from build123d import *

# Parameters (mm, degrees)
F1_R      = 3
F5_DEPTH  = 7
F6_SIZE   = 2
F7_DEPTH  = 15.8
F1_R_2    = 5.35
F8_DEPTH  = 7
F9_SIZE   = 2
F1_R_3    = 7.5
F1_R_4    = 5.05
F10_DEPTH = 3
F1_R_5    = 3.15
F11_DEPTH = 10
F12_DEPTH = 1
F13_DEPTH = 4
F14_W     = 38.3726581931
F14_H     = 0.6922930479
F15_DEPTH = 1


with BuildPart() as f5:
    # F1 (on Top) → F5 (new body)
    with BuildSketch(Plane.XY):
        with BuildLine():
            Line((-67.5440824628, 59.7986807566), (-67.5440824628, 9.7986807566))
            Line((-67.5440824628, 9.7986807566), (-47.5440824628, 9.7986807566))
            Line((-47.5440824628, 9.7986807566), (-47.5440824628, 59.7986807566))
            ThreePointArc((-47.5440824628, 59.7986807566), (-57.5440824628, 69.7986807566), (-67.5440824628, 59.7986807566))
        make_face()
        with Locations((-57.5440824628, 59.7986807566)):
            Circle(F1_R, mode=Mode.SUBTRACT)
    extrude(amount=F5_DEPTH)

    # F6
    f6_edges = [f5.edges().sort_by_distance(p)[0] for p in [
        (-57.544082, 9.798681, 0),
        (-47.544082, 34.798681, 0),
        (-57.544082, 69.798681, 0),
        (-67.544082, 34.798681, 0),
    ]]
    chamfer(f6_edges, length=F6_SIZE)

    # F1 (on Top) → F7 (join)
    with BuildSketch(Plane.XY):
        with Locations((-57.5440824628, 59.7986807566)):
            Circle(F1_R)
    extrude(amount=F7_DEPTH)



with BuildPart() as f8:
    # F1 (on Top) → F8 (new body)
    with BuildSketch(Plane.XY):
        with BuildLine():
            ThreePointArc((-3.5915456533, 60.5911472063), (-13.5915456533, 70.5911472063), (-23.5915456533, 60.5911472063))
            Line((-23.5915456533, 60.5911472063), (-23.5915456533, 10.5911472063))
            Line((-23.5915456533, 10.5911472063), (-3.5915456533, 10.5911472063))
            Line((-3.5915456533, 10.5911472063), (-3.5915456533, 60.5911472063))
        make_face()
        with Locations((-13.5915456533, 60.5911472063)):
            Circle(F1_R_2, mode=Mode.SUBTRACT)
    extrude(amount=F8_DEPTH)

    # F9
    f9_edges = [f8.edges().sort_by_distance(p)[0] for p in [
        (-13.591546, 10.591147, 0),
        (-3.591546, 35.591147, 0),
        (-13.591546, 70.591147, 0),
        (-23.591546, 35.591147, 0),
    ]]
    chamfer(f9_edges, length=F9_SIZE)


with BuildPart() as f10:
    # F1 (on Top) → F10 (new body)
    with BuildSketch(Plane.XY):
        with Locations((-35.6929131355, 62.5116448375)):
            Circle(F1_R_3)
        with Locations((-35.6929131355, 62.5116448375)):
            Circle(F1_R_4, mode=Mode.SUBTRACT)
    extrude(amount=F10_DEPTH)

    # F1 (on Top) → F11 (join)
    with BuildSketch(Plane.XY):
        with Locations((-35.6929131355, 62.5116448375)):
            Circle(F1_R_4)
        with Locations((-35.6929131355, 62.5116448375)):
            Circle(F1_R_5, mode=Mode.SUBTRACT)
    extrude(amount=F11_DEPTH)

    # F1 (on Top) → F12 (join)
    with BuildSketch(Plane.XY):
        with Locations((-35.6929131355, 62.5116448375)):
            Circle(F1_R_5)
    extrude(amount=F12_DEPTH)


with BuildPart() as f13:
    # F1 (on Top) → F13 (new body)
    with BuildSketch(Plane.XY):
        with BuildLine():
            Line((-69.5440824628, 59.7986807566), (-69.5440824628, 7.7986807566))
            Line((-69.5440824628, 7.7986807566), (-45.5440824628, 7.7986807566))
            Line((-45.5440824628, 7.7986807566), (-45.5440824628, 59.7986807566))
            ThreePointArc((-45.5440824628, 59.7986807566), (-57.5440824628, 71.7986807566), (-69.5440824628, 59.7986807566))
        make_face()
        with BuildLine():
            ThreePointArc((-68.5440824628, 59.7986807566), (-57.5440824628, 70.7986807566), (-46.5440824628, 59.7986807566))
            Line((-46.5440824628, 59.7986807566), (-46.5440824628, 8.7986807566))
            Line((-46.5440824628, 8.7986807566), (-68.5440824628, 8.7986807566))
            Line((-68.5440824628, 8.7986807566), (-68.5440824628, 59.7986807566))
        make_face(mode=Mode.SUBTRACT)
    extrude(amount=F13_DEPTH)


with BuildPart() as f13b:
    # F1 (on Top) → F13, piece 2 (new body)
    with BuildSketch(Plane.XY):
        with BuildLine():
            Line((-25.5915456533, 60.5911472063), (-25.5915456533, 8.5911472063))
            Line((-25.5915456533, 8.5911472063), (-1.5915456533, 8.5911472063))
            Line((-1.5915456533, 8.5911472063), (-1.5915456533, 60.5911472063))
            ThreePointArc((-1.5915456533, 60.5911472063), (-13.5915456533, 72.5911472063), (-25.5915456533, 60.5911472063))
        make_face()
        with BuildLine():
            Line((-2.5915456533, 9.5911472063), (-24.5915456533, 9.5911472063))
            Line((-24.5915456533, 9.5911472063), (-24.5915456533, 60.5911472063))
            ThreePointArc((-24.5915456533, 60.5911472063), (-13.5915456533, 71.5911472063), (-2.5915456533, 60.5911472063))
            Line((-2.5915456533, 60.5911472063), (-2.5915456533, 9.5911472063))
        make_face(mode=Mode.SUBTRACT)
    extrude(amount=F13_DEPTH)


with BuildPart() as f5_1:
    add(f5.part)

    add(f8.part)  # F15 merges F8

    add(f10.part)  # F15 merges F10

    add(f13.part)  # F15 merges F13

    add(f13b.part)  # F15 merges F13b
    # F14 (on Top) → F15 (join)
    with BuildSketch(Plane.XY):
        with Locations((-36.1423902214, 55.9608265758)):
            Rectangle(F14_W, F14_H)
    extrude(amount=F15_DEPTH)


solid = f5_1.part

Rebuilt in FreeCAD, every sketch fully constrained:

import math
import FreeCAD as App
import Part
import Sketcher

V = App.Vector


def edges_at(feature, points):
    """Names of the edges that pass closest to the given points."""
    edges = feature.Shape.Edges
    near = lambda p: min(range(len(edges)), key=lambda i: edges[i].distToShape(Part.Vertex(*p))[0])
    return sorted({f"Edge{near(p) + 1}" for p in points})

doc = App.newDocument("Part")
params = doc.addObject("Spreadsheet::Sheet", "Params")
for row, (alias, value) in enumerate([
    ("sketch1_diameter", "6 mm"),
    ("sketch1_radius", "10 mm"),
    ("sketch1_height", "50 mm"),
    ("pad1_length", "7 mm"),
    ("chamfer_size", "2 mm"),
    ("sketch2_diameter", "6 mm"),
    ("pad2_length", "15.8 mm"),
    ("sketch3_radius", "10 mm"),
    ("sketch3_diameter", "10.7 mm"),
    ("sketch3_height", "50 mm"),
    ("pad3_length", "7 mm"),
    ("chamfer2_size", "2 mm"),
    ("sketch4_diameter", "15 mm"),
    ("sketch4_diameter2", "10.1 mm"),
    ("pad4_length", "3 mm"),
    ("sketch5_diameter", "10.1 mm"),
    ("sketch5_diameter2", "6.3 mm"),
    ("pad5_length", "10 mm"),
    ("sketch6_diameter", "6.3 mm"),
    ("pad6_length", "1 mm"),
    ("sketch7_radius", "12 mm"),
    ("sketch7_radius2", "11 mm"),
    ("sketch7_height", "52 mm"),
    ("sketch7_height2", "51 mm"),
    ("pad7_length", "4 mm"),
    ("sketch8_radius", "12 mm"),
    ("sketch8_radius2", "11 mm"),
    ("sketch8_height", "52 mm"),
    ("sketch8_height2", "51 mm"),
    ("pad8_length", "4 mm"),
    ("pad9_length", "1 mm"),
], start=1):
    params.set(f"A{row}", alias)
    params.set(f"B{row}", "=" + value)
    params.setAlias(f"B{row}", alias)

body = doc.addObject("PartDesign::Body", "Body")

# Sketch on XY plane
sketch1 = body.newObject("Sketcher::SketchObject", "Sketch")
sketch1.AttachmentSupport = (doc.getObject("XY_Plane"), [""])
sketch1.MapMode = "FlatFace"
sketch1.addGeometry(Part.LineSegment(V(-67.5, 59.8, 0), V(-67.5, 9.8, 0)), False)
sketch1.addGeometry(Part.LineSegment(V(-67.5, 9.8, 0), V(-47.5, 9.8, 0)), False)
sketch1.addGeometry(Part.LineSegment(V(-47.5, 9.8, 0), V(-47.5, 59.8, 0)), False)
sketch1.addGeometry(Part.ArcOfCircle(Part.Circle(V(-57.5, 59.8, 0), V(0, 0, 1), 10), math.radians(0), math.radians(180)), False)
sketch1.addGeometry(Part.Circle(V(-57.5, 59.8, 0), V(0, 0, 1), 3), False)
sketch1.addConstraint(Sketcher.Constraint("Coincident", 0, 2, 1, 1))
sketch1.addConstraint(Sketcher.Constraint("Coincident", 1, 2, 2, 1))
sketch1.addConstraint(Sketcher.Constraint("Tangent", 2, 2, 3, 1))
sketch1.addConstraint(Sketcher.Constraint("Tangent", 3, 2, 0, 1))
sketch1.addConstraint(Sketcher.Constraint("Vertical", 0))
sketch1.addConstraint(Sketcher.Constraint("Horizontal", 1))
sketch1.addConstraint(Sketcher.Constraint("Vertical", 2))
sketch1.addConstraint(Sketcher.Constraint("Coincident", 4, 3, 3, 3))
sketch1.addConstraint(Sketcher.Constraint("Diameter", 4, 6.0))
sketch1.addConstraint(Sketcher.Constraint("Radius", 3, 10.0))
sketch1.addConstraint(Sketcher.Constraint("DistanceY", 0, 2, 0, 1, 50.0))
sketch1.addConstraint(Sketcher.Constraint("DistanceY", -1, 1, 3, 3, 59.798681))
sketch1.addConstraint(Sketcher.Constraint("DistanceX", 3, 3, -1, 1, 57.544082))
sketch1.setExpression("Constraints[8]", "Params.sketch1_diameter")
sketch1.setExpression("Constraints[9]", "Params.sketch1_radius")
sketch1.setExpression("Constraints[10]", "Params.sketch1_height")
pad1 = body.newObject("PartDesign::Pad", "Pad")
pad1.Profile = sketch1
pad1.setExpression("Length", "Params.pad1_length")
doc.recompute()

chamfer = body.newObject("PartDesign::Chamfer", "Chamfer")
chamfer.Base = (pad1, edges_at(pad1, [
    (-57.544, 9.799, 0),
    (-47.544, 34.799, 0),
    (-57.544, 69.799, 0),
    (-67.544, 34.799, 0),
]))
chamfer.setExpression("Size", "Params.chamfer_size")

# Sketch on XY plane
sketch2 = body.newObject("Sketcher::SketchObject", "Sketch001")
sketch2.AttachmentSupport = (doc.getObject("XY_Plane"), [""])
sketch2.MapMode = "FlatFace"
sketch2.addGeometry(Part.Circle(V(-57.5, 59.8, 0), V(0, 0, 1), 3), False)
sketch2.addConstraint(Sketcher.Constraint("Diameter", 0, 6.0))
sketch2.addConstraint(Sketcher.Constraint("DistanceY", -1, 1, 0, 3, 59.798681))
sketch2.addConstraint(Sketcher.Constraint("DistanceX", 0, 3, -1, 1, 57.544082))
sketch2.setExpression("Constraints[0]", "Params.sketch2_diameter")
pad2 = body.newObject("PartDesign::Pad", "Pad001")
pad2.Profile = sketch2
pad2.setExpression("Length", "Params.pad2_length")
body2 = doc.addObject("PartDesign::Body", "Body001")

# Sketch on XY plane
sketch3 = body2.newObject("Sketcher::SketchObject", "Sketch002")
sketch3.AttachmentSupport = (doc.getObject("XY_Plane001"), [""])
sketch3.MapMode = "FlatFace"
sketch3.addGeometry(Part.ArcOfCircle(Part.Circle(V(-14, 61, 0), V(0, 0, 1), 10), math.radians(0), math.radians(180)), False)
sketch3.addGeometry(Part.LineSegment(V(-24, 61, 0), V(-24, 11, 0)), False)
sketch3.addGeometry(Part.LineSegment(V(-24, 11, 0), V(-4, 11, 0)), False)
sketch3.addGeometry(Part.LineSegment(V(-4, 11, 0), V(-4, 61, 0)), False)
sketch3.addGeometry(Part.Circle(V(-14, 61, 0), V(0, 0, 1), 5), False)
sketch3.addConstraint(Sketcher.Constraint("Tangent", 0, 2, 1, 1))
sketch3.addConstraint(Sketcher.Constraint("Coincident", 1, 2, 2, 1))
sketch3.addConstraint(Sketcher.Constraint("Coincident", 2, 2, 3, 1))
sketch3.addConstraint(Sketcher.Constraint("Tangent", 3, 2, 0, 1))
sketch3.addConstraint(Sketcher.Constraint("Vertical", 1))
sketch3.addConstraint(Sketcher.Constraint("Horizontal", 2))
sketch3.addConstraint(Sketcher.Constraint("Vertical", 3))
sketch3.addConstraint(Sketcher.Constraint("Coincident", 4, 3, 0, 3))
sketch3.addConstraint(Sketcher.Constraint("Radius", 0, 10.0))
sketch3.addConstraint(Sketcher.Constraint("Diameter", 4, 10.7))
sketch3.addConstraint(Sketcher.Constraint("DistanceY", 1, 2, 1, 1, 50.0))
sketch3.addConstraint(Sketcher.Constraint("DistanceX", 0, 3, -1, 1, 13.591546))
sketch3.addConstraint(Sketcher.Constraint("DistanceY", -1, 1, 0, 3, 60.591147))
sketch3.setExpression("Constraints[8]", "Params.sketch3_radius")
sketch3.setExpression("Constraints[9]", "Params.sketch3_diameter")
sketch3.setExpression("Constraints[10]", "Params.sketch3_height")
pad3 = body2.newObject("PartDesign::Pad", "Pad002")
pad3.Profile = sketch3
pad3.setExpression("Length", "Params.pad3_length")
doc.recompute()

chamfer2 = body2.newObject("PartDesign::Chamfer", "Chamfer001")
chamfer2.Base = (pad3, edges_at(pad3, [
    (-13.592, 10.591, 0),
    (-3.592, 35.591, 0),
    (-13.592, 70.591, 0),
    (-23.592, 35.591, 0),
]))
chamfer2.setExpression("Size", "Params.chamfer2_size")
body3 = doc.addObject("PartDesign::Body", "Body002")

# Sketch on XY plane
sketch4 = body3.newObject("Sketcher::SketchObject", "Sketch003")
sketch4.AttachmentSupport = (doc.getObject("XY_Plane002"), [""])
sketch4.MapMode = "FlatFace"
sketch4.addGeometry(Part.Circle(V(-36, 63, 0), V(0, 0, 1), 8), False)
sketch4.addGeometry(Part.Circle(V(-36, 63, 0), V(0, 0, 1), 5), False)
sketch4.addConstraint(Sketcher.Constraint("Coincident", 1, 3, 0, 3))
sketch4.addConstraint(Sketcher.Constraint("Diameter", 0, 15.0))
sketch4.addConstraint(Sketcher.Constraint("Diameter", 1, 10.1))
sketch4.addConstraint(Sketcher.Constraint("DistanceX", 0, 3, -1, 1, 35.692913))
sketch4.addConstraint(Sketcher.Constraint("DistanceY", -1, 1, 0, 3, 62.511645))
sketch4.setExpression("Constraints[1]", "Params.sketch4_diameter")
sketch4.setExpression("Constraints[2]", "Params.sketch4_diameter2")
pad4 = body3.newObject("PartDesign::Pad", "Pad003")
pad4.Profile = sketch4
pad4.setExpression("Length", "Params.pad4_length")

# Sketch on XY plane
sketch5 = body3.newObject("Sketcher::SketchObject", "Sketch004")
sketch5.AttachmentSupport = (doc.getObject("XY_Plane002"), [""])
sketch5.MapMode = "FlatFace"
sketch5.addGeometry(Part.Circle(V(-35.7, 62.5, 0), V(0, 0, 1), 5), False)
sketch5.addGeometry(Part.Circle(V(-35.7, 62.5, 0), V(0, 0, 1), 3.1), False)
sketch5.addConstraint(Sketcher.Constraint("Coincident", 1, 3, 0, 3))
sketch5.addConstraint(Sketcher.Constraint("Diameter", 0, 10.1))
sketch5.addConstraint(Sketcher.Constraint("Diameter", 1, 6.3))
sketch5.addConstraint(Sketcher.Constraint("DistanceX", 0, 3, -1, 1, 35.692913))
sketch5.addConstraint(Sketcher.Constraint("DistanceY", -1, 1, 0, 3, 62.511645))
sketch5.setExpression("Constraints[1]", "Params.sketch5_diameter")
sketch5.setExpression("Constraints[2]", "Params.sketch5_diameter2")
pad5 = body3.newObject("PartDesign::Pad", "Pad004")
pad5.Profile = sketch5
pad5.setExpression("Length", "Params.pad5_length")

# Sketch on XY plane
sketch6 = body3.newObject("Sketcher::SketchObject", "Sketch005")
sketch6.AttachmentSupport = (doc.getObject("XY_Plane002"), [""])
sketch6.MapMode = "FlatFace"
sketch6.addGeometry(Part.Circle(V(-35.7, 62.5, 0), V(0, 0, 1), 3.1), False)
sketch6.addConstraint(Sketcher.Constraint("Diameter", 0, 6.3))
sketch6.addConstraint(Sketcher.Constraint("DistanceX", 0, 3, -1, 1, 35.692913))
sketch6.addConstraint(Sketcher.Constraint("DistanceY", -1, 1, 0, 3, 62.511645))
sketch6.setExpression("Constraints[0]", "Params.sketch6_diameter")
pad6 = body3.newObject("PartDesign::Pad", "Pad005")
pad6.Profile = sketch6
pad6.setExpression("Length", "Params.pad6_length")
body4 = doc.addObject("PartDesign::Body", "Body003")

# Sketch on XY plane
sketch7 = body4.newObject("Sketcher::SketchObject", "Sketch006")
sketch7.AttachmentSupport = (doc.getObject("XY_Plane003"), [""])
sketch7.MapMode = "FlatFace"
sketch7.addGeometry(Part.LineSegment(V(-70, 60, 0), V(-70, 8, 0)), False)
sketch7.addGeometry(Part.LineSegment(V(-70, 8, 0), V(-46, 8, 0)), False)
sketch7.addGeometry(Part.LineSegment(V(-46, 8, 0), V(-46, 60, 0)), False)
sketch7.addGeometry(Part.ArcOfCircle(Part.Circle(V(-58, 60, 0), V(0, 0, 1), 12), math.radians(0), math.radians(180)), False)
sketch7.addGeometry(Part.LineSegment(V(-69, 9, 0), V(-69, 60, 0)), False)
sketch7.addGeometry(Part.ArcOfCircle(Part.Circle(V(-58, 60, 0), V(0, 0, 1), 11), math.radians(0), math.radians(180)), False)
sketch7.addGeometry(Part.LineSegment(V(-47, 60, 0), V(-47, 9, 0)), False)
sketch7.addGeometry(Part.LineSegment(V(-47, 9, 0), V(-69, 9, 0)), False)
sketch7.addConstraint(Sketcher.Constraint("Coincident", 0, 2, 1, 1))
sketch7.addConstraint(Sketcher.Constraint("Coincident", 1, 2, 2, 1))
sketch7.addConstraint(Sketcher.Constraint("Tangent", 2, 2, 3, 1))
sketch7.addConstraint(Sketcher.Constraint("Tangent", 3, 2, 0, 1))
sketch7.addConstraint(Sketcher.Constraint("Tangent", 4, 2, 5, 2))
sketch7.addConstraint(Sketcher.Constraint("Tangent", 5, 1, 6, 1))
sketch7.addConstraint(Sketcher.Constraint("Coincident", 6, 2, 7, 1))
sketch7.addConstraint(Sketcher.Constraint("Coincident", 7, 2, 4, 1))
sketch7.addConstraint(Sketcher.Constraint("Vertical", 0))
sketch7.addConstraint(Sketcher.Constraint("Horizontal", 1))
sketch7.addConstraint(Sketcher.Constraint("Vertical", 2))
sketch7.addConstraint(Sketcher.Constraint("Vertical", 4))
sketch7.addConstraint(Sketcher.Constraint("Vertical", 6))
sketch7.addConstraint(Sketcher.Constraint("Horizontal", 7))
sketch7.addConstraint(Sketcher.Constraint("Coincident", 5, 3, 3, 3))
sketch7.addConstraint(Sketcher.Constraint("Radius", 3, 12.0))
sketch7.addConstraint(Sketcher.Constraint("Radius", 5, 11.0))
sketch7.addConstraint(Sketcher.Constraint("DistanceY", 0, 2, 0, 1, 52.0))
sketch7.addConstraint(Sketcher.Constraint("DistanceY", 4, 1, 4, 2, 51.0))
sketch7.addConstraint(Sketcher.Constraint("DistanceY", -1, 1, 3, 3, 59.798681))
sketch7.addConstraint(Sketcher.Constraint("DistanceX", 3, 3, -1, 1, 57.544082))
sketch7.setExpression("Constraints[15]", "Params.sketch7_radius")
sketch7.setExpression("Constraints[16]", "Params.sketch7_radius2")
sketch7.setExpression("Constraints[17]", "Params.sketch7_height")
sketch7.setExpression("Constraints[18]", "Params.sketch7_height2")
pad7 = body4.newObject("PartDesign::Pad", "Pad006")
pad7.Profile = sketch7
pad7.setExpression("Length", "Params.pad7_length")
body5 = doc.addObject("PartDesign::Body", "Body004")

# Sketch on XY plane
sketch8 = body5.newObject("Sketcher::SketchObject", "Sketch007")
sketch8.AttachmentSupport = (doc.getObject("XY_Plane004"), [""])
sketch8.MapMode = "FlatFace"
sketch8.addGeometry(Part.LineSegment(V(-26, 61, 0), V(-26, 9, 0)), False)
sketch8.addGeometry(Part.LineSegment(V(-26, 9, 0), V(-2, 9, 0)), False)
sketch8.addGeometry(Part.LineSegment(V(-2, 9, 0), V(-2, 61, 0)), False)
sketch8.addGeometry(Part.ArcOfCircle(Part.Circle(V(-14, 61, 0), V(0, 0, 1), 12), math.radians(0), math.radians(180)), False)
sketch8.addGeometry(Part.LineSegment(V(-3, 61, 0), V(-3, 10, 0)), False)
sketch8.addGeometry(Part.LineSegment(V(-3, 10, 0), V(-25, 10, 0)), False)
sketch8.addGeometry(Part.LineSegment(V(-25, 10, 0), V(-25, 61, 0)), False)
sketch8.addGeometry(Part.ArcOfCircle(Part.Circle(V(-14, 61, 0), V(0, 0, 1), 11), math.radians(0), math.radians(180)), False)
sketch8.addConstraint(Sketcher.Constraint("Coincident", 0, 2, 1, 1))
sketch8.addConstraint(Sketcher.Constraint("Coincident", 1, 2, 2, 1))
sketch8.addConstraint(Sketcher.Constraint("Tangent", 2, 2, 3, 1))
sketch8.addConstraint(Sketcher.Constraint("Tangent", 3, 2, 0, 1))
sketch8.addConstraint(Sketcher.Constraint("Coincident", 4, 2, 5, 1))
sketch8.addConstraint(Sketcher.Constraint("Coincident", 5, 2, 6, 1))
sketch8.addConstraint(Sketcher.Constraint("Tangent", 6, 2, 7, 2))
sketch8.addConstraint(Sketcher.Constraint("Tangent", 7, 1, 4, 1))
sketch8.addConstraint(Sketcher.Constraint("Vertical", 0))
sketch8.addConstraint(Sketcher.Constraint("Horizontal", 1))
sketch8.addConstraint(Sketcher.Constraint("Vertical", 2))
sketch8.addConstraint(Sketcher.Constraint("Vertical", 4))
sketch8.addConstraint(Sketcher.Constraint("Horizontal", 5))
sketch8.addConstraint(Sketcher.Constraint("Vertical", 6))
sketch8.addConstraint(Sketcher.Constraint("Coincident", 7, 3, 3, 3))
sketch8.addConstraint(Sketcher.Constraint("Radius", 3, 12.0))
sketch8.addConstraint(Sketcher.Constraint("Radius", 7, 11.0))
sketch8.addConstraint(Sketcher.Constraint("DistanceY", 0, 2, 0, 1, 52.0))
sketch8.addConstraint(Sketcher.Constraint("DistanceY", 4, 2, 4, 1, 51.0))
sketch8.addConstraint(Sketcher.Constraint("DistanceX", 3, 3, -1, 1, 13.591546))
sketch8.addConstraint(Sketcher.Constraint("DistanceY", -1, 1, 3, 3, 60.591147))
sketch8.setExpression("Constraints[15]", "Params.sketch8_radius")
sketch8.setExpression("Constraints[16]", "Params.sketch8_radius2")
sketch8.setExpression("Constraints[17]", "Params.sketch8_height")
sketch8.setExpression("Constraints[18]", "Params.sketch8_height2")
pad8 = body5.newObject("PartDesign::Pad", "Pad007")
pad8.Profile = sketch8
pad8.setExpression("Length", "Params.pad8_length")
body.AllowCompound = True
doc.recompute()

boolean = body.newObject("PartDesign::Boolean", "Boolean")
boolean.Type = "Fuse"
boolean.addObjects([body2])
doc.recompute()

boolean2 = body.newObject("PartDesign::Boolean", "Boolean001")
boolean2.Type = "Fuse"
boolean2.addObjects([body3])
doc.recompute()

boolean3 = body.newObject("PartDesign::Boolean", "Boolean002")
boolean3.Type = "Fuse"
boolean3.addObjects([body4])
doc.recompute()

boolean4 = body.newObject("PartDesign::Boolean", "Boolean003")
boolean4.Type = "Fuse"
boolean4.addObjects([body5])

# Sketch on XY plane
sketch9 = body.newObject("Sketcher::SketchObject", "Sketch008")
sketch9.AttachmentSupport = (doc.getObject("XY_Plane"), [""])
sketch9.MapMode = "FlatFace"
sketch9.addGeometry(Part.LineSegment(V(-55.3, 56.3, 0), V(-55.3, 55.6, 0)), False)
sketch9.addGeometry(Part.LineSegment(V(-55.3, 55.6, 0), V(-17, 55.6, 0)), False)
sketch9.addGeometry(Part.LineSegment(V(-17, 55.6, 0), V(-17, 56.3, 0)), False)
sketch9.addGeometry(Part.LineSegment(V(-17, 56.3, 0), V(-55.3, 56.3, 0)), False)
sketch9.addConstraint(Sketcher.Constraint("Coincident", 0, 2, 1, 1))
sketch9.addConstraint(Sketcher.Constraint("Coincident", 1, 2, 2, 1))
sketch9.addConstraint(Sketcher.Constraint("Coincident", 2, 2, 3, 1))
sketch9.addConstraint(Sketcher.Constraint("Coincident", 3, 2, 0, 1))
sketch9.addConstraint(Sketcher.Constraint("Vertical", 0))
sketch9.addConstraint(Sketcher.Constraint("Horizontal", 1))
sketch9.addConstraint(Sketcher.Constraint("Vertical", 2))
sketch9.addConstraint(Sketcher.Constraint("Horizontal", 3))
sketch9.addConstraint(Sketcher.Constraint("DistanceX", 1, 1, 1, 2, 38.372658))
sketch9.addConstraint(Sketcher.Constraint("DistanceY", 0, 2, 0, 1, 0.692293))
sketch9.addConstraint(Sketcher.Constraint("DistanceX", 0, 2, -1, 1, 55.328719))
sketch9.addConstraint(Sketcher.Constraint("DistanceY", -1, 1, 0, 2, 55.61468))
pad9 = body.newObject("PartDesign::Pad", "Pad008")
pad9.Profile = sketch9
pad9.setExpression("Length", "Params.pad9_length")

doc.recompute()
